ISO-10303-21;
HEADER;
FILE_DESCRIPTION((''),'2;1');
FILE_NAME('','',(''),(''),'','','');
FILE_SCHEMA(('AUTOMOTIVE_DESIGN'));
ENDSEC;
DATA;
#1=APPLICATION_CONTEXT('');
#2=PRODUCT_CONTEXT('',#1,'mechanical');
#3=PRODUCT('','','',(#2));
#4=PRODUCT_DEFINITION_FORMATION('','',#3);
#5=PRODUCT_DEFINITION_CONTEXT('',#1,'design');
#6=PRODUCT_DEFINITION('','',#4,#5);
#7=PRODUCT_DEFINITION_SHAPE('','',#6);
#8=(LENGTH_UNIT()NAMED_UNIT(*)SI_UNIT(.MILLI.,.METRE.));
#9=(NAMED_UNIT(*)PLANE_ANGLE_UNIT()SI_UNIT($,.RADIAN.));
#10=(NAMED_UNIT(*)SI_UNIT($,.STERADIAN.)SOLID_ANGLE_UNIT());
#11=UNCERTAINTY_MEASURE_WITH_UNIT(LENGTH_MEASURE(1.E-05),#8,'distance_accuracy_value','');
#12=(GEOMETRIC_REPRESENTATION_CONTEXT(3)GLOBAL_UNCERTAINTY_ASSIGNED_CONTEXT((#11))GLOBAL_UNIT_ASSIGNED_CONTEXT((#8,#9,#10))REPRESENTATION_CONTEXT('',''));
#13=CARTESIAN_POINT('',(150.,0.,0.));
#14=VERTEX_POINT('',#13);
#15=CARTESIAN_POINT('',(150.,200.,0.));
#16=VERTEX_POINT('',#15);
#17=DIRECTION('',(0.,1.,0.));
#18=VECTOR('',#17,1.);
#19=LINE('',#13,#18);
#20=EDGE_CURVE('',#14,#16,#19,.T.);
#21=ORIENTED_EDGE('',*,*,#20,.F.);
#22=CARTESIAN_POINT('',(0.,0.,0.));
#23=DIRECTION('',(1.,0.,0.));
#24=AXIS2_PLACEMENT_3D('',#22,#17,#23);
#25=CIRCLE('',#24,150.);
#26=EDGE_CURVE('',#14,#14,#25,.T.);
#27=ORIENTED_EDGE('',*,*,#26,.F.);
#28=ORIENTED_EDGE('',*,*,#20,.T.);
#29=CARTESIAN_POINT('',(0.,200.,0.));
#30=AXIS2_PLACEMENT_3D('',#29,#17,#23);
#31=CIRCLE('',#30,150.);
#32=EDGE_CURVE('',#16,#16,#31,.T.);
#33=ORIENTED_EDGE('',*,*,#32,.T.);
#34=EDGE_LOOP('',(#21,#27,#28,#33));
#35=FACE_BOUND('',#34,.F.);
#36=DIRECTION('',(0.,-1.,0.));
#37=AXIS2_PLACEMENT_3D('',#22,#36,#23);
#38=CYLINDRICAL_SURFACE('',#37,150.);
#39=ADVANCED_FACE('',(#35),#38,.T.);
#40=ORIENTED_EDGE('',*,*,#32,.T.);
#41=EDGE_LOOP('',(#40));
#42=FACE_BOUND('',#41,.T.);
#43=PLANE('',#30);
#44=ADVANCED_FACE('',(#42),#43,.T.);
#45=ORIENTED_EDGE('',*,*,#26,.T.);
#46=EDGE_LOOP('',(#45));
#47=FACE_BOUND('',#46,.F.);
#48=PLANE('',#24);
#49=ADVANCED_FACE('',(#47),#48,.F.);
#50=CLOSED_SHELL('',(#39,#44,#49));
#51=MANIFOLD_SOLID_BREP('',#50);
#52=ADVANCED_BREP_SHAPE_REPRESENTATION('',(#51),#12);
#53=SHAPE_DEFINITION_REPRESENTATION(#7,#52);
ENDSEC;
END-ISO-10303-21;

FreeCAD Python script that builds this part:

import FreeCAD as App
import Part
import Sketcher

V = App.Vector

doc = App.newDocument("Part")
params = doc.addObject("Spreadsheet::Sheet", "Params")
for row, (alias, value) in enumerate([
    ("sketch1_diameter", "300 mm"),
    ("pad1_length", "200 mm"),
], start=1):
    params.set(f"A{row}", alias)
    params.set(f"B{row}", "=" + value)
    params.setAlias(f"B{row}", alias)

body = doc.addObject("PartDesign::Body", "Body")

# Sketch on XZ plane
sketch1 = body.newObject("Sketcher::SketchObject", "Sketch")
sketch1.AttachmentSupport = (doc.getObject("XZ_Plane"), [""])
sketch1.MapMode = "FlatFace"
sketch1.addGeometry(Part.Circle(V(0, 0, 0), V(0, 0, 1), 150), False)
sketch1.addConstraint([
    Sketcher.Constraint("Coincident", 0, 3, -1, 1),
    Sketcher.Constraint("Diameter", 0, 300.0),
])
sketch1.setExpression("Constraints[1]", "Params.sketch1_diameter")
pad1 = body.newObject("PartDesign::Pad", "Pad")
pad1.Profile = sketch1
pad1.setExpression("Length", "Params.pad1_length")
pad1.Reversed = True

doc.recompute()
